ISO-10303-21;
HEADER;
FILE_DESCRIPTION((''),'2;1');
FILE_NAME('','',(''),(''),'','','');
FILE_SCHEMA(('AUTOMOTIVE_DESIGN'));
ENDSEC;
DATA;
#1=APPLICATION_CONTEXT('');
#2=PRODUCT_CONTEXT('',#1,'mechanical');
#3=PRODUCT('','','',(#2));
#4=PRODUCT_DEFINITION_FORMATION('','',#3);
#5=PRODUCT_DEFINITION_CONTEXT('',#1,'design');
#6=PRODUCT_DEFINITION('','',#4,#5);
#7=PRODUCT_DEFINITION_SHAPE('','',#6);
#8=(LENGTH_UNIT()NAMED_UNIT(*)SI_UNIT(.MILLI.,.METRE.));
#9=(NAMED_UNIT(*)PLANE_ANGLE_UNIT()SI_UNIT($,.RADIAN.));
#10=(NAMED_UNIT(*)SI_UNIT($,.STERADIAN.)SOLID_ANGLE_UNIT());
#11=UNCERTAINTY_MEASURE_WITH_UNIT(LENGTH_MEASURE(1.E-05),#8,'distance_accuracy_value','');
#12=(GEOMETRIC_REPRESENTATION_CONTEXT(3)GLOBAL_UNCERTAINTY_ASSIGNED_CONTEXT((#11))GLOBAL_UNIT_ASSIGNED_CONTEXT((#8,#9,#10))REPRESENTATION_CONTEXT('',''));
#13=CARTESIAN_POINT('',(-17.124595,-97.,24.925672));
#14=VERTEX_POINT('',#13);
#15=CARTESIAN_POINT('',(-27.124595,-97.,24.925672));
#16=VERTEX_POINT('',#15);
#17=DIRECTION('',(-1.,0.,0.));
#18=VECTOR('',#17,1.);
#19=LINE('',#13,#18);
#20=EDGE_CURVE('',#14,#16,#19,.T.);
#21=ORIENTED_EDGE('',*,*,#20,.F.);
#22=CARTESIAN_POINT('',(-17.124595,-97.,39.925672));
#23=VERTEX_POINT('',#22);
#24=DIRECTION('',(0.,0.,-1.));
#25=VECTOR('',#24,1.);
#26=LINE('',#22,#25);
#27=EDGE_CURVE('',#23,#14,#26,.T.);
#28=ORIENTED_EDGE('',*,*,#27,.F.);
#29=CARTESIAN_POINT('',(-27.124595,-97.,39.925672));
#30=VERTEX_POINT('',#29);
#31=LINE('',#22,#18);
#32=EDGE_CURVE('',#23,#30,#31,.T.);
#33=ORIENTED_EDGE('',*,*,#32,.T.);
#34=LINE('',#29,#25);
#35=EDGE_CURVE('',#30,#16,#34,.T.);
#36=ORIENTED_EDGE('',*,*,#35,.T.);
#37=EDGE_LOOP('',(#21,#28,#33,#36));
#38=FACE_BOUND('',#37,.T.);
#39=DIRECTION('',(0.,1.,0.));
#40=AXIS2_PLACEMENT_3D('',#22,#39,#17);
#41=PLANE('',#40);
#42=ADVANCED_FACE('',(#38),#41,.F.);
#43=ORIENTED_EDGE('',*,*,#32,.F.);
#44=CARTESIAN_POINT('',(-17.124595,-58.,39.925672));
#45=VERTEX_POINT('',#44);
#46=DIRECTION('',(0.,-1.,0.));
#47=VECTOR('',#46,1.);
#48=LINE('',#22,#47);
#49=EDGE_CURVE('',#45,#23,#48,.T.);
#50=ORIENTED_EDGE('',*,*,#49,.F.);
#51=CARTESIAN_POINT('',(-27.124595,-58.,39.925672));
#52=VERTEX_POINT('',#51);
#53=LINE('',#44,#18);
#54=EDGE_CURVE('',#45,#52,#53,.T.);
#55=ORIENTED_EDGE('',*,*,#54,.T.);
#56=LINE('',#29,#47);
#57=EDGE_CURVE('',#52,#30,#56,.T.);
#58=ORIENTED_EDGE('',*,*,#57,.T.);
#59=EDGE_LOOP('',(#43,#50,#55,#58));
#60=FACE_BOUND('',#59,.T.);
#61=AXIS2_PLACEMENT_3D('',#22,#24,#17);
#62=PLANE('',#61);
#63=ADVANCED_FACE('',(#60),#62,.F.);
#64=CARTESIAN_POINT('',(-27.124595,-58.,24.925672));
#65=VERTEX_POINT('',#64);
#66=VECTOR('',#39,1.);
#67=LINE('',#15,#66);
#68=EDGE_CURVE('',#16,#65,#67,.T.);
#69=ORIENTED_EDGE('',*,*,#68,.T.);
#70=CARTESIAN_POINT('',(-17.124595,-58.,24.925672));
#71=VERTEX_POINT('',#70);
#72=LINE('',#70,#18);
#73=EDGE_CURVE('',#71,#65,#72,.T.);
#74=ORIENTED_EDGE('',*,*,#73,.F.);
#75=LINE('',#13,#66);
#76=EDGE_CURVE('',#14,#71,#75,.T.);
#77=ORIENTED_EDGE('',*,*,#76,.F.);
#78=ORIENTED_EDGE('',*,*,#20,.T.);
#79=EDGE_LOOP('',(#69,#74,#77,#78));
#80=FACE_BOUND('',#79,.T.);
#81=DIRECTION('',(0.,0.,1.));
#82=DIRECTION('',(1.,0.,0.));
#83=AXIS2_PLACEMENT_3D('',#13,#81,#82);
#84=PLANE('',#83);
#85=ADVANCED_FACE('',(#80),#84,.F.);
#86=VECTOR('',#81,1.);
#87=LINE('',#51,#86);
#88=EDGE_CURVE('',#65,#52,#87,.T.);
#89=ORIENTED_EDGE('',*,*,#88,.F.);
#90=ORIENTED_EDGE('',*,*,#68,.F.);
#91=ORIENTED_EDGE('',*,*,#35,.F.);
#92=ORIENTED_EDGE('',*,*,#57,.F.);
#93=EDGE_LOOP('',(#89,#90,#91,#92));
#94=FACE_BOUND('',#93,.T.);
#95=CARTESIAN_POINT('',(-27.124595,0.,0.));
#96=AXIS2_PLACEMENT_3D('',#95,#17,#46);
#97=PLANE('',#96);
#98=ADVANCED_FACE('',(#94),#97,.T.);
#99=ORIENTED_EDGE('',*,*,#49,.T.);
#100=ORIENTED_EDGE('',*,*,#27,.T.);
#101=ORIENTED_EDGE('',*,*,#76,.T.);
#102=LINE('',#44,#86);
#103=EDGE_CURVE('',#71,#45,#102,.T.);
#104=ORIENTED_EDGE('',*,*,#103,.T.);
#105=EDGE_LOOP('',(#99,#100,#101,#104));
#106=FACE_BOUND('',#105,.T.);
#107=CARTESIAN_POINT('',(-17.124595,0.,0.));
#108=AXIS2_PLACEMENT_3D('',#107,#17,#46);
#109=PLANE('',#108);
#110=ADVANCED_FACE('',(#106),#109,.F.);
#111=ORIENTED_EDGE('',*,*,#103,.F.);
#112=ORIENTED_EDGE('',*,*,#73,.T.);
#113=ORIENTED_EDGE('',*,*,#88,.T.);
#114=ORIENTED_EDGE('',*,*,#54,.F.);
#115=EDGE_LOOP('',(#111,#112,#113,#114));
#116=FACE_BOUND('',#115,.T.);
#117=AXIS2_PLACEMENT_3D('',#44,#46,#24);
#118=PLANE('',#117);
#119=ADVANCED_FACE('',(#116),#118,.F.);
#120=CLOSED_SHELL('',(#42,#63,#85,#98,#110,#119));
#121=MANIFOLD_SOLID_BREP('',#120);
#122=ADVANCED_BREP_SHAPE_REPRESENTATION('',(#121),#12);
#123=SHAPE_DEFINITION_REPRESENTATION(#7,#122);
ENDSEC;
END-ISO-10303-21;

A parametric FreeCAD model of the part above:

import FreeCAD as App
import Part
import Sketcher
Q = App.Units.Quantity

doc = App.newDocument("Part")
params = doc.addObject("Spreadsheet::Sheet", "Params")
for row, (alias, value) in enumerate([
    ("sketch1_width", "39 mm"),
    ("sketch1_height", "15 mm"),
    ("pad1_length", "10 mm"),
], start=1):
    params.set(f"A{row}", alias)
    params.set(f"B{row}", "=" + value)
    params.setAlias(f"B{row}", alias)

body = doc.addObject("PartDesign::Body", "Body")

sketch1 = doc.addObject("Sketcher::SketchObject", "Sketch")
body.addObject(sketch1)
sketch1.AttachmentSupport = (doc.YZ_Plane, [""])
sketch1.MapMode = "FlatFace"
sketch1.AttachmentOffset = App.Placement(App.Vector(0, 0, -22.124595), App.Rotation())
sketch1.addGeometry([
    Part.LineSegment(App.Vector(-58, 40, 0), App.Vector(-97, 40, 0)),
    Part.LineSegment(App.Vector(-97, 40, 0), App.Vector(-97, 25, 0)),
    Part.LineSegment(App.Vector(-97, 25, 0), App.Vector(-58, 25, 0)),
    Part.LineSegment(App.Vector(-58, 25, 0), App.Vector(-58, 40, 0)),
], False)
sketch1.addConstraint([
    Sketcher.Constraint("Coincident", 0, 2, 1, 1),
    Sketcher.Constraint("Coincident", 1, 2, 2, 1),
    Sketcher.Constraint("Coincident", 2, 2, 3, 1),
    Sketcher.Constraint("Coincident", 3, 2, 0, 1),
    Sketcher.Constraint("Horizontal", 0),
    Sketcher.Constraint("Vertical", 1),
    Sketcher.Constraint("Horizontal", 2),
    Sketcher.Constraint("Vertical", 3),
    Sketcher.Constraint("DistanceX", 0, 2, 0, 1, Q("39 mm")),
    Sketcher.Constraint("DistanceY", 1, 2, 1, 1, Q("15 mm")),
    Sketcher.Constraint("DistanceX", 0, 2, -1, 1, Q("97 mm")),
    Sketcher.Constraint("DistanceY", -1, 1, 0, 2, Q("39.925672 mm")),
])
sketch1.setExpression("Constraints[8]", "Params.sketch1_width")
sketch1.setExpression("Constraints[9]", "Params.sketch1_height")
pad1 = doc.addObject("PartDesign::Pad", "Pad")
body.addObject(pad1)
pad1.Profile = sketch1
pad1.setExpression("Length", "Params.pad1_length")
pad1.Midplane = True

doc.recompute()
